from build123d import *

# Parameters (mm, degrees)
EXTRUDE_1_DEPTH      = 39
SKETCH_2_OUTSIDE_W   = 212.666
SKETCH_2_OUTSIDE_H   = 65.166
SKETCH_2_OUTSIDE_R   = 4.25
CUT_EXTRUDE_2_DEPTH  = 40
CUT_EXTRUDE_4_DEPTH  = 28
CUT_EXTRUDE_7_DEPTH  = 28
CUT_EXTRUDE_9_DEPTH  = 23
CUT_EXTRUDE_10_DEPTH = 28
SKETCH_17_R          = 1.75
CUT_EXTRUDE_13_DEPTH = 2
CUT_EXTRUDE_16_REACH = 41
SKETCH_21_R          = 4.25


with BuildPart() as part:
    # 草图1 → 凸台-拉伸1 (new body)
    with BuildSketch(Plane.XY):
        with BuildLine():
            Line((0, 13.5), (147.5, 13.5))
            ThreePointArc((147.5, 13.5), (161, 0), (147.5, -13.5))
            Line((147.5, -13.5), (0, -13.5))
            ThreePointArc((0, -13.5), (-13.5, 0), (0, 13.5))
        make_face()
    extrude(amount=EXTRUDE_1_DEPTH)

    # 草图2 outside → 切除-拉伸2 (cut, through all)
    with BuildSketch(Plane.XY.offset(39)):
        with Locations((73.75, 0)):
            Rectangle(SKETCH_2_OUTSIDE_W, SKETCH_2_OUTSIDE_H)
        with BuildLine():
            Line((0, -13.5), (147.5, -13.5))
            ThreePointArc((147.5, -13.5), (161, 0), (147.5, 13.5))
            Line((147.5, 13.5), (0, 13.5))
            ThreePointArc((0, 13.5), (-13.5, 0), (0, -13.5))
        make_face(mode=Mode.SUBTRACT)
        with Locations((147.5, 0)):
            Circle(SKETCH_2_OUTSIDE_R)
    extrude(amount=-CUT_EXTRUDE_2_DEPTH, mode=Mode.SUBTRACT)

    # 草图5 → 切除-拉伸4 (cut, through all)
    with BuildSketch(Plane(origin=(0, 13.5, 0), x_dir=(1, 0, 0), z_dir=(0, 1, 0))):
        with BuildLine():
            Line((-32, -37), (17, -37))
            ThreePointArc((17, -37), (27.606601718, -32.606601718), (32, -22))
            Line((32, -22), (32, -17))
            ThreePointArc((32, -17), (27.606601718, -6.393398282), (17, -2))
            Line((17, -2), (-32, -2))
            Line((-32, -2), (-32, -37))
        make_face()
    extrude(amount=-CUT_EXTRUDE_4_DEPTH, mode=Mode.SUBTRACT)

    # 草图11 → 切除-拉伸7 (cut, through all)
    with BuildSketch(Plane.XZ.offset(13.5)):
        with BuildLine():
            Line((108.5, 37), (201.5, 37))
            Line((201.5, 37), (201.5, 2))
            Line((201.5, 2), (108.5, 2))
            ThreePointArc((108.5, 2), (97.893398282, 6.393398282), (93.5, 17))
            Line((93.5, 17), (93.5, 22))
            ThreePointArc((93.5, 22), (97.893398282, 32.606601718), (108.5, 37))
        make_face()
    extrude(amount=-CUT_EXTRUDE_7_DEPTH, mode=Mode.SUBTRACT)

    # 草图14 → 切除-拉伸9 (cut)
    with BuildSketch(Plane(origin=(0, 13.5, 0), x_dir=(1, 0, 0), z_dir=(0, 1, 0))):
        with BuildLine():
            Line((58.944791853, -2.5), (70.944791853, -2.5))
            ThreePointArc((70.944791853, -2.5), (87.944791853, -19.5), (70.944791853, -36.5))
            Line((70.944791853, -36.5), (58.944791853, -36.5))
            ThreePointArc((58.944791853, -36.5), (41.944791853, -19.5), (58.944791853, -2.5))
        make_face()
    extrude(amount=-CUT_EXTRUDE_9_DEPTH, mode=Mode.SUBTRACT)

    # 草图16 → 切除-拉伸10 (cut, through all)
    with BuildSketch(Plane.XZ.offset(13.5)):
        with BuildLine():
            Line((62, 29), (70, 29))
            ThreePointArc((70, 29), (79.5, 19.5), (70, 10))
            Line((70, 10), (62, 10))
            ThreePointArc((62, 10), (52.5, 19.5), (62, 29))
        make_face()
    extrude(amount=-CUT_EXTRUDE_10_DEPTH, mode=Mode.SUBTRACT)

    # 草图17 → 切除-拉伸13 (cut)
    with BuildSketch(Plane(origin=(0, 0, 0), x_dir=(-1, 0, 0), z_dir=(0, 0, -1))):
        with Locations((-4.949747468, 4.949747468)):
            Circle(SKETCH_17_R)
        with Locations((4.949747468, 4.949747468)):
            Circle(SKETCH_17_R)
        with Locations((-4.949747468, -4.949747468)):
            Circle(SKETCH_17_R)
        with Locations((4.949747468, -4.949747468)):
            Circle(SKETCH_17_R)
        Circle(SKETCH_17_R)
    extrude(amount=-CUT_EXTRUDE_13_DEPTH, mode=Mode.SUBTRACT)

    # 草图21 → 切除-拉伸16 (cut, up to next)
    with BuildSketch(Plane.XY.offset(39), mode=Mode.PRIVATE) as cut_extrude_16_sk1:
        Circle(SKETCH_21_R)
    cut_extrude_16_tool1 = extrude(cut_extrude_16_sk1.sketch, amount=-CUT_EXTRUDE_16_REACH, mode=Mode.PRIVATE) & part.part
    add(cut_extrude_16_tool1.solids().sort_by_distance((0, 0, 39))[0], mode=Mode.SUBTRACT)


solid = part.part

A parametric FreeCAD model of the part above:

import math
import FreeCAD as App
import Part
import Sketcher
from FreeCAD import Vector
Q = App.Units.Quantity


def add_polygon(sketch, points):
    """Adds a closed chain of lines whose ends are joined by coincident constraints."""
    first, n = sketch.GeometryCount, len(points)
    for a, b in zip(points, points[1:] + points[:1]):
        sketch.addGeometry(Part.LineSegment(App.Vector(*a, 0), App.Vector(*b, 0)), False)
    for i in range(n):
        sketch.addConstraint(Sketcher.Constraint("Coincident", first + i, 2, first + (i + 1) % n, 1))

doc = App.newDocument("Part")
body = doc.addObject("PartDesign::Body", "Body")

sketch1 = body.newObject("Sketcher::SketchObject", "Sketch")
sketch1.AttachmentSupport = (doc.getObject("XY_Plane"), [""])
sketch1.MapMode = "FlatFace"
sketch1.addGeometry(Part.LineSegment(Vector(147.5, 13.5, 0), Vector(0, 13.5, 0)), False)
sketch1.addGeometry(Part.ArcOfCircle(Part.Circle(Vector(0, 0, 0), Vector(0, 0, 1), 13.5), math.radians(90), math.radians(270)), False)
sketch1.addGeometry(Part.LineSegment(Vector(0, -13.5, 0), Vector(147.5, -13.5, 0)), False)
sketch1.addGeometry(Part.ArcOfCircle(Part.Circle(Vector(147.5, 0, 0), Vector(0, 0, 1), 13.5), math.radians(-90), math.radians(90)), False)
sketch1.addConstraint(Sketcher.Constraint("Tangent", 0, 2, 1, 1))
sketch1.addConstraint(Sketcher.Constraint("Tangent", 1, 2, 2, 1))
sketch1.addConstraint(Sketcher.Constraint("Tangent", 2, 2, 3, 1))
sketch1.addConstraint(Sketcher.Constraint("Tangent", 3, 2, 0, 1))
sketch1.addConstraint(Sketcher.Constraint("Horizontal", 0))
sketch1.addConstraint(Sketcher.Constraint("Horizontal", 2))
sketch1.addConstraint(Sketcher.Constraint("Coincident", 1, 3, -1, 1))
sketch1.addConstraint(Sketcher.Constraint("Radius", 1, Q("13.5 mm")))
sketch1.addConstraint(Sketcher.Constraint("DistanceX", 0, 2, 0, 1, Q("147.5 mm")))
pad1 = body.newObject("PartDesign::Pad", "Pad")
pad1.Profile = sketch1
pad1.Length = 39

sketch2 = body.newObject("Sketcher::SketchObject", "Sketch001")
sketch2.AttachmentSupport = (doc.getObject("XY_Plane"), [""])
sketch2.MapMode = "FlatFace"
sketch2.AttachmentOffset = App.Placement(Vector(0, 0, 39), App.Rotation())
add_polygon(sketch2, [(-32.583, 32.583), (-32.583, -32.583), (180.083, -32.583), (180.083, 32.583)])
sketch2.addGeometry(Part.LineSegment(Vector(147.5, -13.5, 0), Vector(0, -13.5, 0)), False)
sketch2.addGeometry(Part.ArcOfCircle(Part.Circle(Vector(0, 0, 0), Vector(0, 0, 1), 13.5), math.radians(90), math.radians(270)), False)
sketch2.addGeometry(Part.LineSegment(Vector(0, 13.5, 0), Vector(147.5, 13.5, 0)), False)
sketch2.addGeometry(Part.ArcOfCircle(Part.Circle(Vector(147.5, 0, 0), Vector(0, 0, 1), 13.5), math.radians(-90), math.radians(90)), False)
sketch2.addGeometry(Part.Circle(Vector(147.5, 0, 0), Vector(0, 0, 1), 4.25), False)
sketch2.addConstraint(Sketcher.Constraint("Tangent", 4, 2, 5, 2))
sketch2.addConstraint(Sketcher.Constraint("Tangent", 5, 1, 6, 1))
sketch2.addConstraint(Sketcher.Constraint("Tangent", 6, 2, 7, 2))
sketch2.addConstraint(Sketcher.Constraint("Tangent", 7, 1, 4, 1))
sketch2.addConstraint(Sketcher.Constraint("Vertical", 0))
sketch2.addConstraint(Sketcher.Constraint("Horizontal", 1))
sketch2.addConstraint(Sketcher.Constraint("Vertical", 2))
sketch2.addConstraint(Sketcher.Constraint("Horizontal", 3))
sketch2.addConstraint(Sketcher.Constraint("Horizontal", 4))
sketch2.addConstraint(Sketcher.Constraint("Horizontal", 6))
sketch2.addConstraint(Sketcher.Constraint("Coincident", 5, 3, -1, 1))
sketch2.addConstraint(Sketcher.Constraint("Coincident", 8, 3, 7, 3))
sketch2.addConstraint(Sketcher.Constraint("Diameter", 8, Q("8.5 mm")))
sketch2.addConstraint(Sketcher.Constraint("Radius", 5, Q("13.5 mm")))
sketch2.addConstraint(Sketcher.Constraint("DistanceX", 4, 2, 4, 1, Q("147.5 mm")))
sketch2.addConstraint(Sketcher.Constraint("DistanceX", 1, 1, 1, 2, Q("212.666 mm")))
sketch2.addConstraint(Sketcher.Constraint("DistanceY", 0, 2, 0, 1, Q("65.166 mm")))
sketch2.addConstraint(Sketcher.Constraint("DistanceX", 0, 2, -1, 1, Q("32.583 mm")))
sketch2.addConstraint(Sketcher.Constraint("DistanceY", 0, 2, -1, 1, Q("32.583 mm")))
pocket1 = body.newObject("PartDesign::Pocket", "Pocket")
pocket1.Profile = sketch2
pocket1.Type = "ThroughAll"

sketch3 = body.newObject("Sketcher::SketchObject", "Sketch002")
sketch3.AttachmentSupport = (doc.getObject("XZ_Plane"), [""])
sketch3.MapMode = "FlatFace"
sketch3.AttachmentOffset = App.Placement(Vector(0, 0, -13.5), App.Rotation())
sketch3.addGeometry(Part.LineSegment(Vector(-32, 37, 0), Vector(17, 37, 0)), False)
sketch3.addGeometry(Part.ArcOfCircle(Part.Circle(Vector(17, 22, 0), Vector(0, 0, 1), 15), math.radians(0), math.radians(90)), False)
sketch3.addGeometry(Part.LineSegment(Vector(32, 22, 0), Vector(32, 17, 0)), False)
sketch3.addGeometry(Part.ArcOfCircle(Part.Circle(Vector(17, 17, 0), Vector(0, 0, 1), 15), math.radians(-90), math.radians(0)), False)
sketch3.addGeometry(Part.LineSegment(Vector(17, 2, 0), Vector(-32, 2, 0)), False)
sketch3.addGeometry(Part.LineSegment(Vector(-32, 2, 0), Vector(-32, 37, 0)), False)
sketch3.addConstraint(Sketcher.Constraint("Tangent", 0, 2, 1, 2))
sketch3.addConstraint(Sketcher.Constraint("Tangent", 1, 1, 2, 1))
sketch3.addConstraint(Sketcher.Constraint("Tangent", 2, 2, 3, 2))
sketch3.addConstraint(Sketcher.Constraint("Tangent", 3, 1, 4, 1))
sketch3.addConstraint(Sketcher.Constraint("Coincident", 4, 2, 5, 1))
sketch3.addConstraint(Sketcher.Constraint("Coincident", 5, 2, 0, 1))
sketch3.addConstraint(Sketcher.Constraint("Horizontal", 0))
sketch3.addConstraint(Sketcher.Constraint("Vertical", 2))
sketch3.addConstraint(Sketcher.Constraint("Horizontal", 4))
sketch3.addConstraint(Sketcher.Constraint("Vertical", 5))
sketch3.addConstraint(Sketcher.Constraint("Equal", 1, 3))
sketch3.addConstraint(Sketcher.Constraint("Radius", 1, Q("15 mm")))
sketch3.addConstraint(Sketcher.Constraint("DistanceX", 0, 1, 0, 2, Q("49 mm")))
sketch3.addConstraint(Sketcher.Constraint("DistanceY", 2, 2, 2, 1, Q("5 mm")))
sketch3.addConstraint(Sketcher.Constraint("DistanceX", -1, 1, 1, 3, Q("17 mm")))
sketch3.addConstraint(Sketcher.Constraint("DistanceY", -1, 1, 1, 3, Q("22 mm")))
pocket2 = body.newObject("PartDesign::Pocket", "Pocket001")
pocket2.Profile = sketch3
pocket2.Type = "ThroughAll"
pocket2.Reversed = True

sketch4 = body.newObject("Sketcher::SketchObject", "Sketch003")
sketch4.AttachmentSupport = (doc.getObject("XZ_Plane"), [""])
sketch4.MapMode = "FlatFace"
sketch4.AttachmentOffset = App.Placement(Vector(0, 0, 13.5), App.Rotation())
sketch4.addGeometry(Part.LineSegment(Vector(201.5, 37, 0), Vector(108.5, 37, 0)), False)
sketch4.addGeometry(Part.ArcOfCircle(Part.Circle(Vector(108.5, 22, 0), Vector(0, 0, 1), 15), math.radians(90), math.radians(180)), False)
sketch4.addGeometry(Part.LineSegment(Vector(93.5, 22, 0), Vector(93.5, 17, 0)), False)
sketch4.addGeometry(Part.ArcOfCircle(Part.Circle(Vector(108.5, 17, 0), Vector(0, 0, 1), 15), math.radians(180), math.radians(270)), False)
sketch4.addGeometry(Part.LineSegment(Vector(108.5, 2, 0), Vector(201.5, 2, 0)), False)
sketch4.addGeometry(Part.LineSegment(Vector(201.5, 2, 0), Vector(201.5, 37, 0)), False)
sketch4.addConstraint(Sketcher.Constraint("Tangent", 0, 2, 1, 1))
sketch4.addConstraint(Sketcher.Constraint("Tangent", 1, 2, 2, 1))
sketch4.addConstraint(Sketcher.Constraint("Tangent", 2, 2, 3, 1))
sketch4.addConstraint(Sketcher.Constraint("Tangent", 3, 2, 4, 1))
sketch4.addConstraint(Sketcher.Constraint("Coincident", 4, 2, 5, 1))
sketch4.addConstraint(Sketcher.Constraint("Coincident", 5, 2, 0, 1))
sketch4.addConstraint(Sketcher.Constraint("Horizontal", 0))
sketch4.addConstraint(Sketcher.Constraint("Vertical", 2))
sketch4.addConstraint(Sketcher.Constraint("Horizontal", 4))
sketch4.addConstraint(Sketcher.Constraint("Vertical", 5))
sketch4.addConstraint(Sketcher.Constraint("Equal", 1, 3))
sketch4.addConstraint(Sketcher.Constraint("Radius", 1, Q("15 mm")))
sketch4.addConstraint(Sketcher.Constraint("DistanceX", 0, 2, 0, 1, Q("93 mm")))
sketch4.addConstraint(Sketcher.Constraint("DistanceY", 2, 2, 2, 1, Q("5 mm")))
sketch4.addConstraint(Sketcher.Constraint("DistanceY", -1, 1, 1, 3, Q("22 mm")))
sketch4.addConstraint(Sketcher.Constraint("DistanceX", -1, 1, 1, 3, Q("108.5 mm")))
pocket3 = body.newObject("PartDesign::Pocket", "Pocket002")
pocket3.Profile = sketch4
pocket3.Type = "ThroughAll"

sketch5 = body.newObject("Sketcher::SketchObject", "Sketch004")
sketch5.AttachmentSupport = (doc.getObject("XZ_Plane"), [""])
sketch5.MapMode = "FlatFace"
sketch5.AttachmentOffset = App.Placement(Vector(0, 0, -13.5), App.Rotation())
sketch5.addGeometry(Part.LineSegment(Vector(70.944792, 2.5, 0), Vector(58.944792, 2.5, 0)), False)
sketch5.addGeometry(Part.ArcOfCircle(Part.Circle(Vector(58.944792, 19.5, 0), Vector(0, 0, 1), 17), math.radians(90), math.radians(270)), False)
sketch5.addGeometry(Part.LineSegment(Vector(58.944792, 36.5, 0), Vector(70.944792, 36.5, 0)), False)
sketch5.addGeometry(Part.ArcOfCircle(Part.Circle(Vector(70.944792, 19.5, 0), Vector(0, 0, 1), 17), math.radians(-90), math.radians(90)), False)
sketch5.addConstraint(Sketcher.Constraint("Tangent", 0, 2, 1, 2))
sketch5.addConstraint(Sketcher.Constraint("Tangent", 1, 1, 2, 1))
sketch5.addConstraint(Sketcher.Constraint("Tangent", 2, 2, 3, 2))
sketch5.addConstraint(Sketcher.Constraint("Tangent", 3, 1, 0, 1))
sketch5.addConstraint(Sketcher.Constraint("Horizontal", 0))
sketch5.addConstraint(Sketcher.Constraint("Horizontal", 2))
sketch5.addConstraint(Sketcher.Constraint("Radius", 1, Q("17 mm")))
sketch5.addConstraint(Sketcher.Constraint("DistanceX", 0, 2, 0, 1, Q("12 mm")))
sketch5.addConstraint(Sketcher.Constraint("DistanceY", -1, 1, 1, 3, Q("19.5 mm")))
sketch5.addConstraint(Sketcher.Constraint("DistanceX", -1, 1, 1, 3, Q("58.944792 mm")))
pocket4 = body.newObject("PartDesign::Pocket", "Pocket003")
pocket4.Profile = sketch5
pocket4.Length = 23
pocket4.Reversed = True

sketch6 = body.newObject("Sketcher::SketchObject", "Sketch005")
sketch6.AttachmentSupport = (doc.getObject("XZ_Plane"), [""])
sketch6.MapMode = "FlatFace"
sketch6.AttachmentOffset = App.Placement(Vector(0, 0, 13.5), App.Rotation())
sketch6.addGeometry(Part.LineSegment(Vector(70, 29, 0), Vector(62, 29, 0)), False)
sketch6.addGeometry(Part.ArcOfCircle(Part.Circle(Vector(62, 19.5, 0), Vector(0, 0, 1), 9.5), math.radians(90), math.radians(270)), False)
sketch6.addGeometry(Part.LineSegment(Vector(62, 10, 0), Vector(70, 10, 0)), False)
sketch6.addGeometry(Part.ArcOfCircle(Part.Circle(Vector(70, 19.5, 0), Vector(0, 0, 1), 9.5), math.radians(-90), math.radians(90)), False)
sketch6.addConstraint(Sketcher.Constraint("Tangent", 0, 2, 1, 1))
sketch6.addConstraint(Sketcher.Constraint("Tangent", 1, 2, 2, 1))
sketch6.addConstraint(Sketcher.Constraint("Tangent", 2, 2, 3, 1))
sketch6.addConstraint(Sketcher.Constraint("Tangent", 3, 2, 0, 1))
sketch6.addConstraint(Sketcher.Constraint("Horizontal", 0))
sketch6.addConstraint(Sketcher.Constraint("Horizontal", 2))
sketch6.addConstraint(Sketcher.Constraint("Radius", 1, Q("9.5 mm")))
sketch6.addConstraint(Sketcher.Constraint("DistanceX", 0, 2, 0, 1, Q("8 mm")))
sketch6.addConstraint(Sketcher.Constraint("DistanceX", -1, 1, 1, 3, Q("62 mm")))
sketch6.addConstraint(Sketcher.Constraint("DistanceY", -1, 1, 0, 2, Q("29 mm")))
pocket5 = body.newObject("PartDesign::Pocket", "Pocket004")
pocket5.Profile = sketch6
pocket5.Type = "ThroughAll"

sketch7 = body.newObject("Sketcher::SketchObject", "Sketch006")
sketch7.AttachmentSupport = (doc.getObject("XY_Plane"), [""])
sketch7.MapMode = "FlatFace"
sketch7.addGeometry(Part.Circle(Vector(4.949747, 4.949747, 0), Vector(0, 0, 1), 1.75), False)
sketch7.addGeometry(Part.Circle(Vector(-4.949747, 4.949747, 0), Vector(0, 0, 1), 1.75), False)
sketch7.addGeometry(Part.Circle(Vector(4.949747, -4.949747, 0), Vector(0, 0, 1), 1.75), False)
sketch7.addGeometry(Part.Circle(Vector(-4.949747, -4.949747, 0), Vector(0, 0, 1), 1.75), False)
sketch7.addGeometry(Part.Circle(Vector(0, 0, 0), Vector(0, 0, 1), 1.75), False)
sketch7.addConstraint(Sketcher.Constraint("Coincident", 4, 3, -1, 1))
sketch7.addConstraint(Sketcher.Constraint("Equal", 0, 1))
sketch7.addConstraint(Sketcher.Constraint("Equal", 1, 2))
sketch7.addConstraint(Sketcher.Constraint("Equal", 2, 3))
sketch7.addConstraint(Sketcher.Constraint("Equal", 3, 4))
sketch7.addConstraint(Sketcher.Constraint("Symmetric", 1, 3, 2, 3, -1, 1))
sketch7.addConstraint(Sketcher.Constraint("Symmetric", 0, 3, 3, 3, -1, 1))
sketch7.addConstraint(Sketcher.Constraint("Symmetric", 0, 3, 1, 3, -2))
sketch7.addConstraint(Sketcher.Constraint("Diameter", 0, Q("3.5 mm")))
sketch7.addConstraint(Sketcher.Constraint("DistanceX", -1, 1, 0, 3, Q("4.949747 mm")))
sketch7.addConstraint(Sketcher.Constraint("DistanceY", -1, 1, 0, 3, Q("4.949747 mm")))
pocket6 = body.newObject("PartDesign::Pocket", "Pocket005")
pocket6.Profile = sketch7
pocket6.Length = 2
pocket6.Reversed = True

sketch8 = body.newObject("Sketcher::SketchObject", "Sketch007")
sketch8.AttachmentSupport = (doc.getObject("XY_Plane"), [""])
sketch8.MapMode = "FlatFace"
sketch8.AttachmentOffset = App.Placement(Vector(0, 0, 39), App.Rotation())
sketch8.addGeometry(Part.Circle(Vector(0, 0, 0), Vector(0, 0, 1), 4.25), False)
sketch8.addConstraint(Sketcher.Constraint("Coincident", 0, 3, -1, 1))
sketch8.addConstraint(Sketcher.Constraint("Diameter", 0, Q("8.5 mm")))
pocket7 = body.newObject("PartDesign::Pocket", "Pocket006")
pocket7.Profile = sketch8
pocket7.Type = "UpToFirst"

doc.recompute()
